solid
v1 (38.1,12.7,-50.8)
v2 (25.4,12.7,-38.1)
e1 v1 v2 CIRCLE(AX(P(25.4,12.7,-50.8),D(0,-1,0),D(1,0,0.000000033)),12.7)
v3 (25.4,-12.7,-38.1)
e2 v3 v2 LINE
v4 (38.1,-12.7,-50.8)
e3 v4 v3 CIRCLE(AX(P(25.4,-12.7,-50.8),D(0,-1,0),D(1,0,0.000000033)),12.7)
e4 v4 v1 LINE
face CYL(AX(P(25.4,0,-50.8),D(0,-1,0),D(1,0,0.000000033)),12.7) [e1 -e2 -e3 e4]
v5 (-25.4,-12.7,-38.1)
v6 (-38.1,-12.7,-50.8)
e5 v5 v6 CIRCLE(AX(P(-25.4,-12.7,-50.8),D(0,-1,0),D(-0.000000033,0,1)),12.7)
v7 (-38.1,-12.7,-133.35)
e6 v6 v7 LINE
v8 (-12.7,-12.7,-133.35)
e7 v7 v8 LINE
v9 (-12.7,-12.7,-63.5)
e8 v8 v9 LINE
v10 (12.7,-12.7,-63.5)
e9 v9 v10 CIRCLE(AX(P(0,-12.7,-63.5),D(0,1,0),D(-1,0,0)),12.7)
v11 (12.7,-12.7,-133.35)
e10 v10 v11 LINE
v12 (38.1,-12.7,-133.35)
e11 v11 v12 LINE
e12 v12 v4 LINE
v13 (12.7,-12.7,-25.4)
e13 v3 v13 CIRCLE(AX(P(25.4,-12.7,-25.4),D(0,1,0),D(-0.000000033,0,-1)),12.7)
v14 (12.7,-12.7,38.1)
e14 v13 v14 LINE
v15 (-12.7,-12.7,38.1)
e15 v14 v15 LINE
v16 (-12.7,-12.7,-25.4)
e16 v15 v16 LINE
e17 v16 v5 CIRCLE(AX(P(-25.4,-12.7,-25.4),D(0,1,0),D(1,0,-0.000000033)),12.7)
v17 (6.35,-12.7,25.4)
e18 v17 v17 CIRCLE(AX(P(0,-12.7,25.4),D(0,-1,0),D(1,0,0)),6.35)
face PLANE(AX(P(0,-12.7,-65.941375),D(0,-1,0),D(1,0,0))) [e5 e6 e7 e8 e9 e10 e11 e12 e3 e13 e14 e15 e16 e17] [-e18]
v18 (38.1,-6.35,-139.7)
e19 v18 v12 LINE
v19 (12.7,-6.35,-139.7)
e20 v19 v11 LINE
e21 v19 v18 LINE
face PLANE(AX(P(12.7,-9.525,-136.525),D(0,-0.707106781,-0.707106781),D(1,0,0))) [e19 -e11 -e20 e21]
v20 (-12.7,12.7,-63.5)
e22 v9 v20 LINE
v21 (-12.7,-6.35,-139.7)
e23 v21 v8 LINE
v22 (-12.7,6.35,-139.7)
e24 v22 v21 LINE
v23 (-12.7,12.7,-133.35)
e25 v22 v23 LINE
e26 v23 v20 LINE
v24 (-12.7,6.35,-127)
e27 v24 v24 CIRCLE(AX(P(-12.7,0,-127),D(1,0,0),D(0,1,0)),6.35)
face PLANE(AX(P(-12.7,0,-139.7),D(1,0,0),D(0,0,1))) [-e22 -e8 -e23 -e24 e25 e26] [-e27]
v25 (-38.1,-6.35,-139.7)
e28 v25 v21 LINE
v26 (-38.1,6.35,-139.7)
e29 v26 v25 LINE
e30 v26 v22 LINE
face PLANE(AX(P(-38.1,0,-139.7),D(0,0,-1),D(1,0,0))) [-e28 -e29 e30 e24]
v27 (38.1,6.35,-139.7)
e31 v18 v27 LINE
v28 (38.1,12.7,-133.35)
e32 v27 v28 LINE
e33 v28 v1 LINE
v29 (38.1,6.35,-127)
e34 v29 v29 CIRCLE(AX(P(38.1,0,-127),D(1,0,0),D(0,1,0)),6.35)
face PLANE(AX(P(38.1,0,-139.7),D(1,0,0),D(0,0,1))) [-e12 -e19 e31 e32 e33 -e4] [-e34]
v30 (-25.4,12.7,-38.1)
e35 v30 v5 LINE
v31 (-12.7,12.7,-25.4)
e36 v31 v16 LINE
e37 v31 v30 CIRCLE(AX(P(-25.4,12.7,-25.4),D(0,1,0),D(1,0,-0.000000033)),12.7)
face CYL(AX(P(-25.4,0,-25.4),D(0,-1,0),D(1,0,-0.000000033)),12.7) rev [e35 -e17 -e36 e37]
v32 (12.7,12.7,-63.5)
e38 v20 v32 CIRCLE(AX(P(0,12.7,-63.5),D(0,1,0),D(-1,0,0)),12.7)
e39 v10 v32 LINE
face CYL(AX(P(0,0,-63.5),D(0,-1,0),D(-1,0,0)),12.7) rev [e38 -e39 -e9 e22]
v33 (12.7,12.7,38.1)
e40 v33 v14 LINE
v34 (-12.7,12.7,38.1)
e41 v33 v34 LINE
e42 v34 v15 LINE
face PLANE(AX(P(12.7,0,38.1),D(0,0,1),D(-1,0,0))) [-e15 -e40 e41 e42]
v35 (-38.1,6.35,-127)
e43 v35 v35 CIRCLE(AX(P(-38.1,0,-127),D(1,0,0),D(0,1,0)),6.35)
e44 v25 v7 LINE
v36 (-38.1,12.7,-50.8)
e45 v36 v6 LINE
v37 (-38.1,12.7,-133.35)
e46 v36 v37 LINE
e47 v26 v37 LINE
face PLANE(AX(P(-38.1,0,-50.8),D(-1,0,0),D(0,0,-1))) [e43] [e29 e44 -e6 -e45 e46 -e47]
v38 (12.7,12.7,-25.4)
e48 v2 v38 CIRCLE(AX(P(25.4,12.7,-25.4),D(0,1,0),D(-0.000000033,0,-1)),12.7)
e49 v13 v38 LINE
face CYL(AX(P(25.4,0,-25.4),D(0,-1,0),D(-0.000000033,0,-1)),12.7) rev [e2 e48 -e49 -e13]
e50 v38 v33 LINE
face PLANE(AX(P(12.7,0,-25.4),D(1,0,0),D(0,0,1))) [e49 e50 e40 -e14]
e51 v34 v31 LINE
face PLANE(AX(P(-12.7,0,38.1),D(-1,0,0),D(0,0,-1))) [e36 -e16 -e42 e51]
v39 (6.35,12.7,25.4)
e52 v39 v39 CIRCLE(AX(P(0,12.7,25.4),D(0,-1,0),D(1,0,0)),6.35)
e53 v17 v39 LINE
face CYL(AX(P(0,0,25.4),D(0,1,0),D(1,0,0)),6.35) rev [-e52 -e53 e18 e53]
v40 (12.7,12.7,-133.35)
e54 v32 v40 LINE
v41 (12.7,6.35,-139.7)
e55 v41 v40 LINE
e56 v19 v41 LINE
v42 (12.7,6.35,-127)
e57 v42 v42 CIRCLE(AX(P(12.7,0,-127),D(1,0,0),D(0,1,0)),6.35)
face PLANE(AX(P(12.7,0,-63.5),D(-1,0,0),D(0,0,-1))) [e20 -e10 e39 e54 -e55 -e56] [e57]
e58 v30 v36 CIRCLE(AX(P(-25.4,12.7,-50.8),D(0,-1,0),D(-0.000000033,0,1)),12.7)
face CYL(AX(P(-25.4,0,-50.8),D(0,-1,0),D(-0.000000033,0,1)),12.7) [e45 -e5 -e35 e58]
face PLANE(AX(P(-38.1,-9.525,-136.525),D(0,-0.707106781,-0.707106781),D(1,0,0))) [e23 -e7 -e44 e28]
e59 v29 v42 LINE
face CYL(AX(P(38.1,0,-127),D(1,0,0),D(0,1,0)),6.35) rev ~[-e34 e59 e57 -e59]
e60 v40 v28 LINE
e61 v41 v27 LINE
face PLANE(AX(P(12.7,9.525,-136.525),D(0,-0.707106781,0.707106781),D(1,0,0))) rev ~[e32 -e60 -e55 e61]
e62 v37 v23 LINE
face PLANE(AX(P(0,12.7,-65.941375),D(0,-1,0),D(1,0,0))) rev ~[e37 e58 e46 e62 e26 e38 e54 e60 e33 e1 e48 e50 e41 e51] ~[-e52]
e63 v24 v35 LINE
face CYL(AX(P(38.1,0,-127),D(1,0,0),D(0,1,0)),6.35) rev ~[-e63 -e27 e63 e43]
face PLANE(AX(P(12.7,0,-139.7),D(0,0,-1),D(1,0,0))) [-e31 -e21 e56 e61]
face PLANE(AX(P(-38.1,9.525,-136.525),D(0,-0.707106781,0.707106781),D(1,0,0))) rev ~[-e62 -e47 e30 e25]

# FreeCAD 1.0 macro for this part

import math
import FreeCAD as App
import Part
import Sketcher
Q = App.Units.Quantity


def edges_at(feature, points):
    """Names of the edges that pass closest to the given points."""
    edges = feature.Shape.Edges
    near = lambda p: min(range(len(edges)), key=lambda i: edges[i].distToShape(Part.Vertex(*p))[0])
    return sorted({f"Edge{near(p) + 1}" for p in points})

doc = App.newDocument("Part")
params = doc.addObject("Spreadsheet::Sheet", "Params")
for row, (alias, value) in enumerate([
    ("sketch1_diameter", "0.5 in"),
    ("sketch1_radius", "0.5 in"),
    ("sketch1_height", "3 in"),
    ("sketch1_height2", "2.5 in"),
    ("sketch1_height3", "3.5 in"),
    ("pad1_length", "1 in"),
    ("chamfer_size", "0.25 in"),
    ("sketch2_diameter", "0.5 in"),
    ("pocket1_length", "3 in"),
], start=1):
    params.set(f"A{row}", alias)
    params.set(f"B{row}", "=" + value)
    params.setAlias(f"B{row}", alias)

body = doc.addObject("PartDesign::Body", "Body")

# Sketch on XZ plane
sketch1 = body.newObject("Sketcher::SketchObject", "Sketch")
sketch1.AttachmentSupport = (doc.getObject("XZ_Plane"), [""])
sketch1.MapMode = "FlatFace"
sketch1.addGeometry(Part.LineSegment(App.Vector(13, -25, 0), App.Vector(13, 38, 0)), False)
sketch1.addGeometry(Part.LineSegment(App.Vector(13, 38, 0), App.Vector(-13, 38, 0)), False)
sketch1.addGeometry(Part.LineSegment(App.Vector(-13, 38, 0), App.Vector(-13, -25, 0)), False)
sketch1.addGeometry(Part.ArcOfCircle(Part.Circle(App.Vector(-25, -25, 0), App.Vector(0, 0, 1), 13), math.radians(-90), math.radians(0)), False)
sketch1.addGeometry(Part.ArcOfCircle(Part.Circle(App.Vector(-25, -51, 0), App.Vector(0, 0, 1), 13), math.radians(90), math.radians(180)), False)
sketch1.addGeometry(Part.LineSegment(App.Vector(-38, -51, 0), App.Vector(-38, -140, 0)), False)
sketch1.addGeometry(Part.LineSegment(App.Vector(-38, -140, 0), App.Vector(-13, -140, 0)), False)
sketch1.addGeometry(Part.LineSegment(App.Vector(-13, -140, 0), App.Vector(-13, -64, 0)), False)
sketch1.addGeometry(Part.ArcOfCircle(Part.Circle(App.Vector(0, -64, 0), App.Vector(0, 0, 1), 13), math.radians(0), math.radians(180)), False)
sketch1.addGeometry(Part.LineSegment(App.Vector(13, -64, 0), App.Vector(13, -140, 0)), False)
sketch1.addGeometry(Part.LineSegment(App.Vector(13, -140, 0), App.Vector(38, -140, 0)), False)
sketch1.addGeometry(Part.LineSegment(App.Vector(38, -140, 0), App.Vector(38, -51, 0)), False)
sketch1.addGeometry(Part.ArcOfCircle(Part.Circle(App.Vector(25, -51, 0), App.Vector(0, 0, 1), 13), math.radians(0), math.radians(90)), False)
sketch1.addGeometry(Part.ArcOfCircle(Part.Circle(App.Vector(25, -25, 0), App.Vector(0, 0, 1), 13), math.radians(-180), math.radians(-90)), False)
sketch1.addGeometry(Part.Circle(App.Vector(0, 25, 0), App.Vector(0, 0, 1), 6), False)
sketch1.addConstraint(Sketcher.Constraint("Coincident", 0, 2, 1, 1))
sketch1.addConstraint(Sketcher.Constraint("Coincident", 1, 2, 2, 1))
sketch1.addConstraint(Sketcher.Constraint("Tangent", 2, 2, 3, 2))
sketch1.addConstraint(Sketcher.Constraint("Tangent", 3, 1, 4, 1))
sketch1.addConstraint(Sketcher.Constraint("Tangent", 4, 2, 5, 1))
sketch1.addConstraint(Sketcher.Constraint("Coincident", 5, 2, 6, 1))
sketch1.addConstraint(Sketcher.Constraint("Coincident", 6, 2, 7, 1))
sketch1.addConstraint(Sketcher.Constraint("Tangent", 7, 2, 8, 2))
sketch1.addConstraint(Sketcher.Constraint("Tangent", 8, 1, 9, 1))
sketch1.addConstraint(Sketcher.Constraint("Coincident", 9, 2, 10, 1))
sketch1.addConstraint(Sketcher.Constraint("Coincident", 10, 2, 11, 1))
sketch1.addConstraint(Sketcher.Constraint("Tangent", 11, 2, 12, 1))
sketch1.addConstraint(Sketcher.Constraint("Tangent", 12, 2, 13, 2))
sketch1.addConstraint(Sketcher.Constraint("Tangent", 13, 1, 0, 1))
sketch1.addConstraint(Sketcher.Constraint("Vertical", 0))
sketch1.addConstraint(Sketcher.Constraint("Horizontal", 1))
sketch1.addConstraint(Sketcher.Constraint("Vertical", 2))
sketch1.addConstraint(Sketcher.Constraint("Vertical", 5))
sketch1.addConstraint(Sketcher.Constraint("Horizontal", 6))
sketch1.addConstraint(Sketcher.Constraint("Vertical", 7))
sketch1.addConstraint(Sketcher.Constraint("Vertical", 9))
sketch1.addConstraint(Sketcher.Constraint("Horizontal", 10))
sketch1.addConstraint(Sketcher.Constraint("Vertical", 11))
sketch1.addConstraint(Sketcher.Constraint("Equal", 3, 4))
sketch1.addConstraint(Sketcher.Constraint("Equal", 4, 8))
sketch1.addConstraint(Sketcher.Constraint("Equal", 8, 12))
sketch1.addConstraint(Sketcher.Constraint("Equal", 12, 13))
sketch1.addConstraint(Sketcher.Constraint("Symmetric", 4, 3, 12, 3, -2))
sketch1.addConstraint(Sketcher.Constraint("Symmetric", 6, 2, 9, 2, -2))
sketch1.addConstraint(Sketcher.Constraint("PointOnObject", 14, 3, -2))
sketch1.addConstraint(Sketcher.Constraint("Vertical", 3, 3, 4, 3))
sketch1.addConstraint(Sketcher.Constraint("Vertical", 12, 3, 13, 3))
sketch1.addConstraint(Sketcher.Constraint("Vertical", 2, 2, 6, 2))
sketch1.addConstraint(Sketcher.Constraint("Diameter", 14, Q("0.5 in")))
sketch1.addConstraint(Sketcher.Constraint("Radius", 3, Q("0.5 in")))
sketch1.addConstraint(Sketcher.Constraint("DistanceY", 7, 1, 7, 2, Q("3 in")))
sketch1.addConstraint(Sketcher.Constraint("DistanceY", 0, 1, 0, 2, Q("2.5 in")))
sketch1.addConstraint(Sketcher.Constraint("DistanceY", 5, 2, 5, 1, Q("3.5 in")))
sketch1.addConstraint(Sketcher.Constraint("DistanceY", 3, 3, -1, 1, Q("1 in")))
sketch1.addConstraint(Sketcher.Constraint("DistanceY", -1, 1, 14, 3, Q("1 in")))
sketch1.setExpression("Constraints[33]", "Params.sketch1_diameter")
sketch1.setExpression("Constraints[34]", "Params.sketch1_radius")
sketch1.setExpression("Constraints[35]", "Params.sketch1_height")
sketch1.setExpression("Constraints[36]", "Params.sketch1_height2")
sketch1.setExpression("Constraints[37]", "Params.sketch1_height3")
pad1 = body.newObject("PartDesign::Pad", "Pad")
pad1.Profile = sketch1
pad1.setExpression("Length", "Params.pad1_length")
pad1.Midplane = True
doc.recompute()

chamfer = body.newObject("PartDesign::Chamfer", "Chamfer")
chamfer.Base = (pad1, edges_at(pad1, [
    (-25.4, 12.7, -139.7),
    (-25.4, -12.7, -139.7),
    (25.4, -12.7, -139.7),
    (25.4, 12.7, -139.7),
]))
chamfer.setExpression("Size", "Params.chamfer_size")

# Sketch on YZ plane
sketch2 = body.newObject("Sketcher::SketchObject", "Sketch001")
sketch2.AttachmentSupport = (doc.getObject("YZ_Plane"), [""])
sketch2.MapMode = "FlatFace"
sketch2.AttachmentOffset = App.Placement(App.Vector(0, 0, 1.5 * 25.4), App.Rotation())
sketch2.addGeometry(Part.Circle(App.Vector(0, -127, 0), App.Vector(0, 0, 1), 6), False)
sketch2.addConstraint(Sketcher.Constraint("PointOnObject", 0, 3, -2))
sketch2.addConstraint(Sketcher.Constraint("Diameter", 0, Q("0.5 in")))
sketch2.addConstraint(Sketcher.Constraint("DistanceY", 0, 3, -1, 1, Q("5 in")))
sketch2.setExpression("Constraints[1]", "Params.sketch2_diameter")
pocket1 = body.newObject("PartDesign::Pocket", "Pocket")
pocket1.Profile = sketch2
pocket1.setExpression("Length", "Params.pocket1_length")

doc.recompute()
